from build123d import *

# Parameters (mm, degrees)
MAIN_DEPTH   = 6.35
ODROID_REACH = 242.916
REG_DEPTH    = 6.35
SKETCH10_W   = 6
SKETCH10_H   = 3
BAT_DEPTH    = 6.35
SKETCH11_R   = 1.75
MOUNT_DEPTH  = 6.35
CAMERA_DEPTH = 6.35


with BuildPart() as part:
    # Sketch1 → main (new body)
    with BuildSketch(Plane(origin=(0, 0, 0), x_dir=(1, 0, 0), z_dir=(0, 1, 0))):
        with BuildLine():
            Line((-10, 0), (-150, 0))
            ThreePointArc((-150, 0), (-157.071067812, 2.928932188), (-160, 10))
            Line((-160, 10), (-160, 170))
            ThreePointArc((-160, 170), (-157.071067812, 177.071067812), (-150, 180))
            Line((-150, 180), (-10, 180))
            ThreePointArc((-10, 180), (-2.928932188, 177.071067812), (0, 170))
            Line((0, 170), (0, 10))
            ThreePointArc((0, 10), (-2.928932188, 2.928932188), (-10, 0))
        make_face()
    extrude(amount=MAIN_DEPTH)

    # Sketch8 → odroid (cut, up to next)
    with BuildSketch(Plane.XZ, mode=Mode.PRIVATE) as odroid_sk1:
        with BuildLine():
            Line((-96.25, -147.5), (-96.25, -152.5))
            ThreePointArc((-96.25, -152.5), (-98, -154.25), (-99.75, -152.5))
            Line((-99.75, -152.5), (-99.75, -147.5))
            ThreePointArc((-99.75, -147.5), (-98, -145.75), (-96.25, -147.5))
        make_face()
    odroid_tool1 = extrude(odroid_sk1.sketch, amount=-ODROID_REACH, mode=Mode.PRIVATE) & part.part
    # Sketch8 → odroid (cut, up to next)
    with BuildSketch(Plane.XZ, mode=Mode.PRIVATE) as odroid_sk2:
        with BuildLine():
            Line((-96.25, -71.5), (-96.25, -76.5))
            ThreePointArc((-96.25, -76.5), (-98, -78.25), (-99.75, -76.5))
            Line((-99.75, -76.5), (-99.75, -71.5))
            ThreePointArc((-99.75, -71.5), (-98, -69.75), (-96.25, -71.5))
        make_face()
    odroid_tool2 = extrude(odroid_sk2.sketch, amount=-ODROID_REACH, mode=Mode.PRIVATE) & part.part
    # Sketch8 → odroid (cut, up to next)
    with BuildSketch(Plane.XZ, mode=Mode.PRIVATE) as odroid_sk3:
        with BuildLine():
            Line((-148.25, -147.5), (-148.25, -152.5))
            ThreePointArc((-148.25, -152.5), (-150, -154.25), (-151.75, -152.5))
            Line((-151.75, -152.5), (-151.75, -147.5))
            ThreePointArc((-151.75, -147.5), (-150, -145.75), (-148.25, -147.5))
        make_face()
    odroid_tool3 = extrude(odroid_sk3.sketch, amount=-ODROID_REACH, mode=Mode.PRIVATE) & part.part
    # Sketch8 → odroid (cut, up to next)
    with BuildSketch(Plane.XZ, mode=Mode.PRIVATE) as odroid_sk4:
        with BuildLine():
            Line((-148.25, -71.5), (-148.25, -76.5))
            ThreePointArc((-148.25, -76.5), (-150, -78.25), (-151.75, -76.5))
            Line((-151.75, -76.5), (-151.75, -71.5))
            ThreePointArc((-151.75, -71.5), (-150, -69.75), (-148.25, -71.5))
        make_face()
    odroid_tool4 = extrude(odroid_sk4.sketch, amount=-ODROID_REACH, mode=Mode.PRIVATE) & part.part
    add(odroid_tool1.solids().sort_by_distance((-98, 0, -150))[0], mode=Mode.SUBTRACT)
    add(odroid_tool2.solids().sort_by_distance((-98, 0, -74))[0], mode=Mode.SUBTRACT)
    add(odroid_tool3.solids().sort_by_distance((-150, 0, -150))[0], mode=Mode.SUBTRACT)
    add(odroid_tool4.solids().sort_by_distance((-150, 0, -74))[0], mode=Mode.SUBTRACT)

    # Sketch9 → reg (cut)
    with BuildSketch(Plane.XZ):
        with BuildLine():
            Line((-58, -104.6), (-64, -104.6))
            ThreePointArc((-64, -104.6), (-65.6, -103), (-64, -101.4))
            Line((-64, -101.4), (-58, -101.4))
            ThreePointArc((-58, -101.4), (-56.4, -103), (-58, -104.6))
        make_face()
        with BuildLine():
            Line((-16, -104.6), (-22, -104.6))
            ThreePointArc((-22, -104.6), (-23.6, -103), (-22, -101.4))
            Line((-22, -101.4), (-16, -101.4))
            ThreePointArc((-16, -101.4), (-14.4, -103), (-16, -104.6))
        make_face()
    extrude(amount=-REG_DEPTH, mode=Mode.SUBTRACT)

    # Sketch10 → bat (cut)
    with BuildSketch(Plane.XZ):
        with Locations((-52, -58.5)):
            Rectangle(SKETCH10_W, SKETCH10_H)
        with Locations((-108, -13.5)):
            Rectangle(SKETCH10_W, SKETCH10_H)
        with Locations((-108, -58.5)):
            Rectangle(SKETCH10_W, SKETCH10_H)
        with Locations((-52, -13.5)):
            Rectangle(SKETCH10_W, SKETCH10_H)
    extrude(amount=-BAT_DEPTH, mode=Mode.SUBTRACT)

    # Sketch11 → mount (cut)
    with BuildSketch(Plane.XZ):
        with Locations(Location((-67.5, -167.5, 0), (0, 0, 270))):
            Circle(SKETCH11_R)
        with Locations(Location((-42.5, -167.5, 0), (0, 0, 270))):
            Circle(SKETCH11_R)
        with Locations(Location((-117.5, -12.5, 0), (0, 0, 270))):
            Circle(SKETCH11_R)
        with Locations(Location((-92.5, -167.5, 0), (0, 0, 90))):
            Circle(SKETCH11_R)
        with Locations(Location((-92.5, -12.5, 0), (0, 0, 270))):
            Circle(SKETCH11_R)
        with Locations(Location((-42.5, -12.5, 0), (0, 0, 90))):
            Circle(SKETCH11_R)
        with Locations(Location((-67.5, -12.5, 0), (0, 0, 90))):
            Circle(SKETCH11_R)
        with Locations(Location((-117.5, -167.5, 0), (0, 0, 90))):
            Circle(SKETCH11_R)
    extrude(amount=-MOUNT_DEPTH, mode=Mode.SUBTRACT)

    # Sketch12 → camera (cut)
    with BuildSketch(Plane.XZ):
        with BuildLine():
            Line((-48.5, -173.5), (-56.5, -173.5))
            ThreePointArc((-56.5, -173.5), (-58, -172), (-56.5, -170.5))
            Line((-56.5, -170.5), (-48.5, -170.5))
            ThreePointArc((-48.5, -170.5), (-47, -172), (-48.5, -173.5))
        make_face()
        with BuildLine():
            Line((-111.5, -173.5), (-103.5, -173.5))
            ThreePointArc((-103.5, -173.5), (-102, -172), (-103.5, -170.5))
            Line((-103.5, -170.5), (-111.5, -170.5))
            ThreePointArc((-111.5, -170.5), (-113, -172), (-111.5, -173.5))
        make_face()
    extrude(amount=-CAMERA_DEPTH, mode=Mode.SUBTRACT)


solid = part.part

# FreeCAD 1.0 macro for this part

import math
import FreeCAD as App
import Part
import Sketcher

doc = App.newDocument("Part")
params = doc.addObject("Spreadsheet::Sheet", "Params")
for row, (alias, value) in enumerate([
    ("sketch1_radius", "10 mm"),
    ("sketch1_width", "140 mm"),
    ("sketch1_height", "160 mm"),
    ("pad1_length", "6.35 mm"),
    ("sketch2_height", "5 mm"),
    ("sketch2_radius", "1.75 mm"),
    ("sketch3_height", "5 mm"),
    ("sketch3_radius", "1.75 mm"),
    ("sketch4_height", "5 mm"),
    ("sketch4_radius", "1.75 mm"),
    ("sketch5_height", "5 mm"),
    ("sketch5_radius", "1.75 mm"),
    ("sketch6_radius", "1.6 mm"),
    ("sketch6_width", "6 mm"),
    ("pocket5_length", "6.35 mm"),
    ("sketch7_width", "6 mm"),
    ("sketch7_height", "3 mm"),
    ("pocket6_length", "6.35 mm"),
    ("sketch8_diameter", "3.5 mm"),
    ("pocket7_length", "6.35 mm"),
    ("sketch9_radius", "1.5 mm"),
    ("sketch9_width", "8 mm"),
    ("pocket8_length", "6.35 mm"),
], start=1):
    params.set(f"A{row}", alias)
    params.set(f"B{row}", "=" + value)
    params.setAlias(f"B{row}", alias)

body = doc.addObject("PartDesign::Body", "Body")

# Sketch on XZ plane
sketch1 = doc.addObject("Sketcher::SketchObject", "Sketch")
body.addObject(sketch1)
sketch1.AttachmentSupport = (doc.XZ_Plane, [""])
sketch1.MapMode = "FlatFace"
sketch1.addGeometry([
    Part.LineSegment(App.Vector(-150, 0, 0), App.Vector(-10, 0, 0)),  # 0
    Part.ArcOfCircle(Part.Circle(App.Vector(-10, -10, 0), App.Vector(0, 0, 1), 10), math.radians(0), math.radians(90)),  # 1
    Part.LineSegment(App.Vector(0, -10, 0), App.Vector(0, -170, 0)),  # 2
    Part.ArcOfCircle(Part.Circle(App.Vector(-10, -170, 0), App.Vector(0, 0, 1), 10), math.radians(-90), math.radians(0)),  # 3
    Part.LineSegment(App.Vector(-10, -180, 0), App.Vector(-150, -180, 0)),  # 4
    Part.ArcOfCircle(Part.Circle(App.Vector(-150, -170, 0), App.Vector(0, 0, 1), 10), math.radians(180), math.radians(270)),  # 5
    Part.LineSegment(App.Vector(-160, -170, 0), App.Vector(-160, -10, 0)),  # 6
    Part.ArcOfCircle(Part.Circle(App.Vector(-150, -10, 0), App.Vector(0, 0, 1), 10), math.radians(90), math.radians(180)),  # 7
], False)
sketch1.addConstraint([
    Sketcher.Constraint("Tangent", 0, 2, 1, 2),
    Sketcher.Constraint("Tangent", 1, 1, 2, 1),
    Sketcher.Constraint("Tangent", 2, 2, 3, 2),
    Sketcher.Constraint("Tangent", 3, 1, 4, 1),
    Sketcher.Constraint("Tangent", 4, 2, 5, 2),
    Sketcher.Constraint("Tangent", 5, 1, 6, 1),
    Sketcher.Constraint("Tangent", 6, 2, 7, 2),
    Sketcher.Constraint("Tangent", 7, 1, 0, 1),
    Sketcher.Constraint("Horizontal", 0),
    Sketcher.Constraint("Vertical", 2),
    Sketcher.Constraint("Horizontal", 4),
    Sketcher.Constraint("Vertical", 6),
    Sketcher.Constraint("Equal", 1, 3),
    Sketcher.Constraint("Equal", 3, 5),
    Sketcher.Constraint("Equal", 5, 7),
    Sketcher.Constraint("PointOnObject", 0, 2, -1),
    Sketcher.Constraint("PointOnObject", 1, 1, -2),
    Sketcher.Constraint("Radius", 1, 10.0),
    Sketcher.Constraint("DistanceX", 0, 1, 0, 2, 140.0),
    Sketcher.Constraint("DistanceY", 2, 2, 2, 1, 160.0),
])
sketch1.setExpression("Constraints[17]", "Params.sketch1_radius")
sketch1.setExpression("Constraints[18]", "Params.sketch1_width")
sketch1.setExpression("Constraints[19]", "Params.sketch1_height")
pad1 = doc.addObject("PartDesign::Pad", "Pad")
body.addObject(pad1)
pad1.Profile = sketch1
pad1.setExpression("Length", "Params.pad1_length")
pad1.Reversed = True

# Sketch on XZ plane
sketch2 = doc.addObject("Sketcher::SketchObject", "Sketch001")
body.addObject(sketch2)
sketch2.AttachmentSupport = (doc.XZ_Plane, [""])
sketch2.MapMode = "FlatFace"
sketch2.addGeometry([
    Part.LineSegment(App.Vector(-96.2, -152.5, 0), App.Vector(-96.2, -147.5, 0)),
    Part.ArcOfCircle(Part.Circle(App.Vector(-98, -147.5, 0), App.Vector(0, 0, 1), 1.8), math.radians(0), math.radians(180)),
    Part.LineSegment(App.Vector(-99.8, -147.5, 0), App.Vector(-99.8, -152.5, 0)),
    Part.ArcOfCircle(Part.Circle(App.Vector(-98, -152.5, 0), App.Vector(0, 0, 1), 1.8), math.radians(180), math.radians(360)),
], False)
sketch2.addConstraint([
    Sketcher.Constraint("Tangent", 0, 2, 1, 1),
    Sketcher.Constraint("Tangent", 1, 2, 2, 1),
    Sketcher.Constraint("Tangent", 2, 2, 3, 1),
    Sketcher.Constraint("Tangent", 3, 2, 0, 1),
    Sketcher.Constraint("Vertical", 0),
    Sketcher.Constraint("Vertical", 2),
    Sketcher.Constraint("DistanceY", 0, 1, 0, 2, 5.0),
    Sketcher.Constraint("Radius", 1, 1.75),
    Sketcher.Constraint("DistanceX", 1, 3, -1, 1, 98.0),
    Sketcher.Constraint("DistanceY", 1, 3, -1, 1, 147.5),
])
sketch2.setExpression("Constraints[6]", "Params.sketch2_height")
sketch2.setExpression("Constraints[7]", "Params.sketch2_radius")
pocket1 = doc.addObject("PartDesign::Pocket", "Pocket")
body.addObject(pocket1)
pocket1.Profile = sketch2
pocket1.Type = "UpToFirst"

# Sketch on XZ plane
sketch3 = doc.addObject("Sketcher::SketchObject", "Sketch002")
body.addObject(sketch3)
sketch3.AttachmentSupport = (doc.XZ_Plane, [""])
sketch3.MapMode = "FlatFace"
sketch3.addGeometry([
    Part.LineSegment(App.Vector(-96.2, -76.5, 0), App.Vector(-96.2, -71.5, 0)),
    Part.ArcOfCircle(Part.Circle(App.Vector(-98, -71.5, 0), App.Vector(0, 0, 1), 1.8), math.radians(0), math.radians(180)),
    Part.LineSegment(App.Vector(-99.8, -71.5, 0), App.Vector(-99.8, -76.5, 0)),
    Part.ArcOfCircle(Part.Circle(App.Vector(-98, -76.5, 0), App.Vector(0, 0, 1), 1.8), math.radians(180), math.radians(360)),
], False)
sketch3.addConstraint([
    Sketcher.Constraint("Tangent", 0, 2, 1, 1),
    Sketcher.Constraint("Tangent", 1, 2, 2, 1),
    Sketcher.Constraint("Tangent", 2, 2, 3, 1),
    Sketcher.Constraint("Tangent", 3, 2, 0, 1),
    Sketcher.Constraint("Vertical", 0),
    Sketcher.Constraint("Vertical", 2),
    Sketcher.Constraint("DistanceY", 0, 1, 0, 2, 5.0),
    Sketcher.Constraint("Radius", 1, 1.75),
    Sketcher.Constraint("DistanceX", 1, 3, -1, 1, 98.0),
    Sketcher.Constraint("DistanceY", 1, 3, -1, 1, 71.5),
])
sketch3.setExpression("Constraints[6]", "Params.sketch3_height")
sketch3.setExpression("Constraints[7]", "Params.sketch3_radius")
pocket2 = doc.addObject("PartDesign::Pocket", "Pocket001")
body.addObject(pocket2)
pocket2.Profile = sketch3
pocket2.Type = "UpToFirst"

# Sketch on XZ plane
sketch4 = doc.addObject("Sketcher::SketchObject", "Sketch003")
body.addObject(sketch4)
sketch4.AttachmentSupport = (doc.XZ_Plane, [""])
sketch4.MapMode = "FlatFace"
sketch4.addGeometry([
    Part.LineSegment(App.Vector(-148.2, -152.5, 0), App.Vector(-148.2, -147.5, 0)),
    Part.ArcOfCircle(Part.Circle(App.Vector(-150, -147.5, 0), App.Vector(0, 0, 1), 1.8), math.radians(0), math.radians(180)),
    Part.LineSegment(App.Vector(-151.8, -147.5, 0), App.Vector(-151.8, -152.5, 0)),
    Part.ArcOfCircle(Part.Circle(App.Vector(-150, -152.5, 0), App.Vector(0, 0, 1), 1.8), math.radians(180), math.radians(360)),
], False)
sketch4.addConstraint([
    Sketcher.Constraint("Tangent", 0, 2, 1, 1),
    Sketcher.Constraint("Tangent", 1, 2, 2, 1),
    Sketcher.Constraint("Tangent", 2, 2, 3, 1),
    Sketcher.Constraint("Tangent", 3, 2, 0, 1),
    Sketcher.Constraint("Vertical", 0),
    Sketcher.Constraint("Vertical", 2),
    Sketcher.Constraint("DistanceY", 0, 1, 0, 2, 5.0),
    Sketcher.Constraint("Radius", 1, 1.75),
    Sketcher.Constraint("DistanceX", 1, 3, -1, 1, 150.0),
    Sketcher.Constraint("DistanceY", 1, 3, -1, 1, 147.5),
])
sketch4.setExpression("Constraints[6]", "Params.sketch4_height")
sketch4.setExpression("Constraints[7]", "Params.sketch4_radius")
pocket3 = doc.addObject("PartDesign::Pocket", "Pocket002")
body.addObject(pocket3)
pocket3.Profile = sketch4
pocket3.Type = "UpToFirst"

# Sketch on XZ plane
sketch5 = doc.addObject("Sketcher::SketchObject", "Sketch004")
body.addObject(sketch5)
sketch5.AttachmentSupport = (doc.XZ_Plane, [""])
sketch5.MapMode = "FlatFace"
sketch5.addGeometry([
    Part.LineSegment(App.Vector(-148.2, -76.5, 0), App.Vector(-148.2, -71.5, 0)),
    Part.ArcOfCircle(Part.Circle(App.Vector(-150, -71.5, 0), App.Vector(0, 0, 1), 1.8), math.radians(0), math.radians(180)),
    Part.LineSegment(App.Vector(-151.8, -71.5, 0), App.Vector(-151.8, -76.5, 0)),
    Part.ArcOfCircle(Part.Circle(App.Vector(-150, -76.5, 0), App.Vector(0, 0, 1), 1.8), math.radians(180), math.radians(360)),
], False)
sketch5.addConstraint([
    Sketcher.Constraint("Tangent", 0, 2, 1, 1),
    Sketcher.Constraint("Tangent", 1, 2, 2, 1),
    Sketcher.Constraint("Tangent", 2, 2, 3, 1),
    Sketcher.Constraint("Tangent", 3, 2, 0, 1),
    Sketcher.Constraint("Vertical", 0),
    Sketcher.Constraint("Vertical", 2),
    Sketcher.Constraint("DistanceY", 0, 1, 0, 2, 5.0),
    Sketcher.Constraint("Radius", 1, 1.75),
    Sketcher.Constraint("DistanceX", 1, 3, -1, 1, 150.0),
    Sketcher.Constraint("DistanceY", 1, 3, -1, 1, 71.5),
])
sketch5.setExpression("Constraints[6]", "Params.sketch5_height")
sketch5.setExpression("Constraints[7]", "Params.sketch5_radius")
pocket4 = doc.addObject("PartDesign::Pocket", "Pocket003")
body.addObject(pocket4)
pocket4.Profile = sketch5
pocket4.Type = "UpToFirst"

# Sketch on XZ plane
sketch6 = doc.addObject("Sketcher::SketchObject", "Sketch005")
body.addObject(sketch6)
sketch6.AttachmentSupport = (doc.XZ_Plane, [""])
sketch6.MapMode = "FlatFace"
sketch6.addGeometry([
    Part.LineSegment(App.Vector(-64, -104.6, 0), App.Vector(-58, -104.6, 0)),  # 0
    Part.ArcOfCircle(Part.Circle(App.Vector(-58, -103, 0), App.Vector(0, 0, 1), 1.6), math.radians(-90), math.radians(90)),  # 1
    Part.LineSegment(App.Vector(-58, -101.4, 0), App.Vector(-64, -101.4, 0)),  # 2
    Part.ArcOfCircle(Part.Circle(App.Vector(-64, -103, 0), App.Vector(0, 0, 1), 1.6), math.radians(90), math.radians(270)),  # 3
    Part.LineSegment(App.Vector(-22, -104.6, 0), App.Vector(-16, -104.6, 0)),  # 4
    Part.ArcOfCircle(Part.Circle(App.Vector(-16, -103, 0), App.Vector(0, 0, 1), 1.6), math.radians(-90), math.radians(90)),  # 5
    Part.LineSegment(App.Vector(-16, -101.4, 0), App.Vector(-22, -101.4, 0)),  # 6
    Part.ArcOfCircle(Part.Circle(App.Vector(-22, -103, 0), App.Vector(0, 0, 1), 1.6), math.radians(90), math.radians(270)),  # 7
], False)
sketch6.addConstraint([
    Sketcher.Constraint("Tangent", 0, 2, 1, 1),
    Sketcher.Constraint("Tangent", 1, 2, 2, 1),
    Sketcher.Constraint("Tangent", 2, 2, 3, 1),
    Sketcher.Constraint("Tangent", 3, 2, 0, 1),
    Sketcher.Constraint("Tangent", 4, 2, 5, 1),
    Sketcher.Constraint("Tangent", 5, 2, 6, 1),
    Sketcher.Constraint("Tangent", 6, 2, 7, 1),
    Sketcher.Constraint("Tangent", 7, 2, 4, 1),
    Sketcher.Constraint("Horizontal", 0),
    Sketcher.Constraint("Horizontal", 2),
    Sketcher.Constraint("Horizontal", 4),
    Sketcher.Constraint("Horizontal", 6),
    Sketcher.Constraint("Equal", 3, 5),
    Sketcher.Constraint("Horizontal", 3, 3, 5, 3),
    Sketcher.Constraint("Equal", 2, 4),
    Sketcher.Constraint("Radius", 1, 1.6),
    Sketcher.Constraint("DistanceX", 0, 1, 0, 2, 6.0),
    Sketcher.Constraint("DistanceX", 1, 3, -1, 1, 58.0),
    Sketcher.Constraint("DistanceY", 1, 3, -1, 1, 103.0),
    Sketcher.Constraint("DistanceX", 5, 3, -1, 1, 16.0),
])
sketch6.setExpression("Constraints[15]", "Params.sketch6_radius")
sketch6.setExpression("Constraints[16]", "Params.sketch6_width")
pocket5 = doc.addObject("PartDesign::Pocket", "Pocket004")
body.addObject(pocket5)
pocket5.Profile = sketch6
pocket5.setExpression("Length", "Params.pocket5_length")

# Sketch on XZ plane
sketch7 = doc.addObject("Sketcher::SketchObject", "Sketch006")
body.addObject(sketch7)
sketch7.AttachmentSupport = (doc.XZ_Plane, [""])
sketch7.MapMode = "FlatFace"
sketch7.addGeometry([
    Part.LineSegment(App.Vector(-55, -57, 0), App.Vector(-55, -60, 0)),  # 0
    Part.LineSegment(App.Vector(-55, -60, 0), App.Vector(-49, -60, 0)),  # 1
    Part.LineSegment(App.Vector(-49, -60, 0), App.Vector(-49, -57, 0)),  # 2
    Part.LineSegment(App.Vector(-49, -57, 0), App.Vector(-55, -57, 0)),  # 3
    Part.LineSegment(App.Vector(-111, -12, 0), App.Vector(-111, -15, 0)),  # 4
    Part.LineSegment(App.Vector(-111, -15, 0), App.Vector(-105, -15, 0)),  # 5
    Part.LineSegment(App.Vector(-105, -15, 0), App.Vector(-105, -12, 0)),  # 6
    Part.LineSegment(App.Vector(-105, -12, 0), App.Vector(-111, -12, 0)),  # 7
    Part.LineSegment(App.Vector(-111, -57, 0), App.Vector(-111, -60, 0)),  # 8
    Part.LineSegment(App.Vector(-111, -60, 0), App.Vector(-105, -60, 0)),  # 9
    Part.LineSegment(App.Vector(-105, -60, 0), App.Vector(-105, -57, 0)),  # 10
    Part.LineSegment(App.Vector(-105, -57, 0), App.Vector(-111, -57, 0)),  # 11
    Part.LineSegment(App.Vector(-55, -12, 0), App.Vector(-55, -15, 0)),  # 12
    Part.LineSegment(App.Vector(-55, -15, 0), App.Vector(-49, -15, 0)),  # 13
    Part.LineSegment(App.Vector(-49, -15, 0), App.Vector(-49, -12, 0)),  # 14
    Part.LineSegment(App.Vector(-49, -12, 0), App.Vector(-55, -12, 0)),  # 15
], False)
sketch7.addConstraint([
    Sketcher.Constraint("Coincident", 0, 2, 1, 1),
    Sketcher.Constraint("Coincident", 1, 2, 2, 1),
    Sketcher.Constraint("Coincident", 2, 2, 3, 1),
    Sketcher.Constraint("Coincident", 3, 2, 0, 1),
    Sketcher.Constraint("Coincident", 4, 2, 5, 1),
    Sketcher.Constraint("Coincident", 5, 2, 6, 1),
    Sketcher.Constraint("Coincident", 6, 2, 7, 1),
    Sketcher.Constraint("Coincident", 7, 2, 4, 1),
    Sketcher.Constraint("Coincident", 8, 2, 9, 1),
    Sketcher.Constraint("Coincident", 9, 2, 10, 1),
    Sketcher.Constraint("Coincident", 10, 2, 11, 1),
    Sketcher.Constraint("Coincident", 11, 2, 8, 1),
    Sketcher.Constraint("Coincident", 12, 2, 13, 1),
    Sketcher.Constraint("Coincident", 13, 2, 14, 1),
    Sketcher.Constraint("Coincident", 14, 2, 15, 1),
    Sketcher.Constraint("Coincident", 15, 2, 12, 1),
    Sketcher.Constraint("Vertical", 0),
    Sketcher.Constraint("Horizontal", 1),
    Sketcher.Constraint("Vertical", 2),
    Sketcher.Constraint("Horizontal", 3),
    Sketcher.Constraint("Vertical", 4),
    Sketcher.Constraint("Horizontal", 5),
    Sketcher.Constraint("Vertical", 6),
    Sketcher.Constraint("Horizontal", 7),
    Sketcher.Constraint("Vertical", 8),
    Sketcher.Constraint("Horizontal", 9),
    Sketcher.Constraint("Vertical", 10),
    Sketcher.Constraint("Horizontal", 11),
    Sketcher.Constraint("Vertical", 12),
    Sketcher.Constraint("Horizontal", 13),
    Sketcher.Constraint("Vertical", 14),
    Sketcher.Constraint("Horizontal", 15),
    Sketcher.Constraint("Horizontal", 1, 2, 8, 2),
    Sketcher.Constraint("Horizontal", 3, 2, 10, 2),
    Sketcher.Constraint("Horizontal", 5, 2, 12, 2),
    Sketcher.Constraint("Horizontal", 7, 2, 14, 2),
    Sketcher.Constraint("Vertical", 7, 2, 8, 2),
    Sketcher.Constraint("Vertical", 6, 2, 9, 2),
    Sketcher.Constraint("Vertical", 3, 2, 12, 2),
    Sketcher.Constraint("Vertical", 2, 2, 13, 2),
    Sketcher.Constraint("Equal", 3, 5),
    Sketcher.Constraint("Equal", 2, 4),
    Sketcher.Constraint("DistanceX", 1, 1, 1, 2, 6.0),
    Sketcher.Constraint("DistanceY", 0, 2, 0, 1, 3.0),
    Sketcher.Constraint("DistanceX", 0, 2, -1, 1, 55.0),
    Sketcher.Constraint("DistanceY", 0, 2, -1, 1, 60.0),
    Sketcher.Constraint("DistanceX", 4, 2, -1, 1, 111.0),
    Sketcher.Constraint("DistanceY", 4, 2, -1, 1, 15.0),
])
sketch7.setExpression("Constraints[42]", "Params.sketch7_width")
sketch7.setExpression("Constraints[43]", "Params.sketch7_height")
pocket6 = doc.addObject("PartDesign::Pocket", "Pocket005")
body.addObject(pocket6)
pocket6.Profile = sketch7
pocket6.setExpression("Length", "Params.pocket6_length")

# Sketch on XZ plane
sketch8 = doc.addObject("Sketcher::SketchObject", "Sketch007")
body.addObject(sketch8)
sketch8.AttachmentSupport = (doc.XZ_Plane, [""])
sketch8.MapMode = "FlatFace"
sketch8.addGeometry([
    Part.Circle(App.Vector(-67.5, -167.5, 0), App.Vector(0, 0, 1), 1.8),  # 0
    Part.Circle(App.Vector(-42.5, -167.5, 0), App.Vector(0, 0, 1), 1.8),  # 1
    Part.Circle(App.Vector(-117.5, -12.5, 0), App.Vector(0, 0, 1), 1.8),  # 2
    Part.Circle(App.Vector(-92.5, -167.5, 0), App.Vector(0, 0, 1), 1.8),  # 3
    Part.Circle(App.Vector(-92.5, -12.5, 0), App.Vector(0, 0, 1), 1.8),  # 4
    Part.Circle(App.Vector(-42.5, -12.5, 0), App.Vector(0, 0, 1), 1.8),  # 5
    Part.Circle(App.Vector(-67.5, -12.5, 0), App.Vector(0, 0, 1), 1.8),  # 6
    Part.Circle(App.Vector(-117.5, -167.5, 0), App.Vector(0, 0, 1), 1.8),  # 7
], False)
sketch8.addConstraint([
    Sketcher.Constraint("Equal", 0, 1),
    Sketcher.Constraint("Equal", 1, 2),
    Sketcher.Constraint("Equal", 2, 3),
    Sketcher.Constraint("Equal", 3, 4),
    Sketcher.Constraint("Equal", 4, 5),
    Sketcher.Constraint("Equal", 5, 6),
    Sketcher.Constraint("Equal", 6, 7),
    Sketcher.Constraint("Horizontal", 0, 3, 1, 3),
    Sketcher.Constraint("Horizontal", 1, 3, 3, 3),
    Sketcher.Constraint("Horizontal", 2, 3, 4, 3),
    Sketcher.Constraint("Horizontal", 4, 3, 5, 3),
    Sketcher.Constraint("Horizontal", 5, 3, 6, 3),
    Sketcher.Constraint("Horizontal", 3, 3, 7, 3),
    Sketcher.Constraint("Vertical", 3, 3, 4, 3),
    Sketcher.Constraint("Vertical", 1, 3, 5, 3),
    Sketcher.Constraint("Vertical", 0, 3, 6, 3),
    Sketcher.Constraint("Vertical", 2, 3, 7, 3),
    Sketcher.Constraint("Diameter", 0, 3.5),
    Sketcher.Constraint("DistanceX", 0, 3, 1, 3, 25.0),
    Sketcher.Constraint("DistanceX", 2, 3, 0, 3, 50.0),
    Sketcher.Constraint("DistanceY", 0, 3, 2, 3, 155.0),
    Sketcher.Constraint("DistanceX", 3, 3, 0, 3, 25.0),
    Sketcher.Constraint("DistanceX", 0, 3, -1, 1, 67.5),
    Sketcher.Constraint("DistanceY", 0, 3, -1, 1, 167.5),
])
sketch8.setExpression("Constraints[17]", "Params.sketch8_diameter")
pocket7 = doc.addObject("PartDesign::Pocket", "Pocket006")
body.addObject(pocket7)
pocket7.Profile = sketch8
pocket7.setExpression("Length", "Params.pocket7_length")

# Sketch on XZ plane
sketch9 = doc.addObject("Sketcher::SketchObject", "Sketch008")
body.addObject(sketch9)
sketch9.AttachmentSupport = (doc.XZ_Plane, [""])
sketch9.MapMode = "FlatFace"
sketch9.addGeometry([
    Part.LineSegment(App.Vector(-56.5, -173.5, 0), App.Vector(-48.5, -173.5, 0)),  # 0
    Part.ArcOfCircle(Part.Circle(App.Vector(-48.5, -172, 0), App.Vector(0, 0, 1), 1.5), math.radians(-90), math.radians(90)),  # 1
    Part.LineSegment(App.Vector(-48.5, -170.5, 0), App.Vector(-56.5, -170.5, 0)),  # 2
    Part.ArcOfCircle(Part.Circle(App.Vector(-56.5, -172, 0), App.Vector(0, 0, 1), 1.5), math.radians(90), math.radians(270)),  # 3
    Part.LineSegment(App.Vector(-111.5, -173.5, 0), App.Vector(-103.5, -173.5, 0)),  # 4
    Part.ArcOfCircle(Part.Circle(App.Vector(-103.5, -172, 0), App.Vector(0, 0, 1), 1.5), math.radians(-90), math.radians(90)),  # 5
    Part.LineSegment(App.Vector(-103.5, -170.5, 0), App.Vector(-111.5, -170.5, 0)),  # 6
    Part.ArcOfCircle(Part.Circle(App.Vector(-111.5, -172, 0), App.Vector(0, 0, 1), 1.5), math.radians(90), math.radians(270)),  # 7
], False)
sketch9.addConstraint([
    Sketcher.Constraint("Tangent", 0, 2, 1, 1),
    Sketcher.Constraint("Tangent", 1, 2, 2, 1),
    Sketcher.Constraint("Tangent", 2, 2, 3, 1),
    Sketcher.Constraint("Tangent", 3, 2, 0, 1),
    Sketcher.Constraint("Tangent", 4, 2, 5, 1),
    Sketcher.Constraint("Tangent", 5, 2, 6, 1),
    Sketcher.Constraint("Tangent", 6, 2, 7, 1),
    Sketcher.Constraint("Tangent", 7, 2, 4, 1),
    Sketcher.Constraint("Horizontal", 0),
    Sketcher.Constraint("Horizontal", 2),
    Sketcher.Constraint("Horizontal", 4),
    Sketcher.Constraint("Horizontal", 6),
    Sketcher.Constraint("Equal", 3, 5),
    Sketcher.Constraint("Horizontal", 3, 3, 5, 3),
    Sketcher.Constraint("Equal", 2, 4),
    Sketcher.Constraint("Radius", 1, 1.5),
    Sketcher.Constraint("DistanceX", 0, 1, 0, 2, 8.0),
    Sketcher.Constraint("DistanceY", 1, 3, -1, 1, 172.0),
    Sketcher.Constraint("DistanceX", 5, 3, 3, 3, 47.0),
    Sketcher.Constraint("DistanceX", 1, 3, -1, 1, 48.5),
])
sketch9.setExpression("Constraints[15]", "Params.sketch9_radius")
sketch9.setExpression("Constraints[16]", "Params.sketch9_width")
pocket8 = doc.addObject("PartDesign::Pocket", "Pocket007")
body.addObject(pocket8)
pocket8.Profile = sketch9
pocket8.setExpression("Length", "Params.pocket8_length")

doc.recompute()
